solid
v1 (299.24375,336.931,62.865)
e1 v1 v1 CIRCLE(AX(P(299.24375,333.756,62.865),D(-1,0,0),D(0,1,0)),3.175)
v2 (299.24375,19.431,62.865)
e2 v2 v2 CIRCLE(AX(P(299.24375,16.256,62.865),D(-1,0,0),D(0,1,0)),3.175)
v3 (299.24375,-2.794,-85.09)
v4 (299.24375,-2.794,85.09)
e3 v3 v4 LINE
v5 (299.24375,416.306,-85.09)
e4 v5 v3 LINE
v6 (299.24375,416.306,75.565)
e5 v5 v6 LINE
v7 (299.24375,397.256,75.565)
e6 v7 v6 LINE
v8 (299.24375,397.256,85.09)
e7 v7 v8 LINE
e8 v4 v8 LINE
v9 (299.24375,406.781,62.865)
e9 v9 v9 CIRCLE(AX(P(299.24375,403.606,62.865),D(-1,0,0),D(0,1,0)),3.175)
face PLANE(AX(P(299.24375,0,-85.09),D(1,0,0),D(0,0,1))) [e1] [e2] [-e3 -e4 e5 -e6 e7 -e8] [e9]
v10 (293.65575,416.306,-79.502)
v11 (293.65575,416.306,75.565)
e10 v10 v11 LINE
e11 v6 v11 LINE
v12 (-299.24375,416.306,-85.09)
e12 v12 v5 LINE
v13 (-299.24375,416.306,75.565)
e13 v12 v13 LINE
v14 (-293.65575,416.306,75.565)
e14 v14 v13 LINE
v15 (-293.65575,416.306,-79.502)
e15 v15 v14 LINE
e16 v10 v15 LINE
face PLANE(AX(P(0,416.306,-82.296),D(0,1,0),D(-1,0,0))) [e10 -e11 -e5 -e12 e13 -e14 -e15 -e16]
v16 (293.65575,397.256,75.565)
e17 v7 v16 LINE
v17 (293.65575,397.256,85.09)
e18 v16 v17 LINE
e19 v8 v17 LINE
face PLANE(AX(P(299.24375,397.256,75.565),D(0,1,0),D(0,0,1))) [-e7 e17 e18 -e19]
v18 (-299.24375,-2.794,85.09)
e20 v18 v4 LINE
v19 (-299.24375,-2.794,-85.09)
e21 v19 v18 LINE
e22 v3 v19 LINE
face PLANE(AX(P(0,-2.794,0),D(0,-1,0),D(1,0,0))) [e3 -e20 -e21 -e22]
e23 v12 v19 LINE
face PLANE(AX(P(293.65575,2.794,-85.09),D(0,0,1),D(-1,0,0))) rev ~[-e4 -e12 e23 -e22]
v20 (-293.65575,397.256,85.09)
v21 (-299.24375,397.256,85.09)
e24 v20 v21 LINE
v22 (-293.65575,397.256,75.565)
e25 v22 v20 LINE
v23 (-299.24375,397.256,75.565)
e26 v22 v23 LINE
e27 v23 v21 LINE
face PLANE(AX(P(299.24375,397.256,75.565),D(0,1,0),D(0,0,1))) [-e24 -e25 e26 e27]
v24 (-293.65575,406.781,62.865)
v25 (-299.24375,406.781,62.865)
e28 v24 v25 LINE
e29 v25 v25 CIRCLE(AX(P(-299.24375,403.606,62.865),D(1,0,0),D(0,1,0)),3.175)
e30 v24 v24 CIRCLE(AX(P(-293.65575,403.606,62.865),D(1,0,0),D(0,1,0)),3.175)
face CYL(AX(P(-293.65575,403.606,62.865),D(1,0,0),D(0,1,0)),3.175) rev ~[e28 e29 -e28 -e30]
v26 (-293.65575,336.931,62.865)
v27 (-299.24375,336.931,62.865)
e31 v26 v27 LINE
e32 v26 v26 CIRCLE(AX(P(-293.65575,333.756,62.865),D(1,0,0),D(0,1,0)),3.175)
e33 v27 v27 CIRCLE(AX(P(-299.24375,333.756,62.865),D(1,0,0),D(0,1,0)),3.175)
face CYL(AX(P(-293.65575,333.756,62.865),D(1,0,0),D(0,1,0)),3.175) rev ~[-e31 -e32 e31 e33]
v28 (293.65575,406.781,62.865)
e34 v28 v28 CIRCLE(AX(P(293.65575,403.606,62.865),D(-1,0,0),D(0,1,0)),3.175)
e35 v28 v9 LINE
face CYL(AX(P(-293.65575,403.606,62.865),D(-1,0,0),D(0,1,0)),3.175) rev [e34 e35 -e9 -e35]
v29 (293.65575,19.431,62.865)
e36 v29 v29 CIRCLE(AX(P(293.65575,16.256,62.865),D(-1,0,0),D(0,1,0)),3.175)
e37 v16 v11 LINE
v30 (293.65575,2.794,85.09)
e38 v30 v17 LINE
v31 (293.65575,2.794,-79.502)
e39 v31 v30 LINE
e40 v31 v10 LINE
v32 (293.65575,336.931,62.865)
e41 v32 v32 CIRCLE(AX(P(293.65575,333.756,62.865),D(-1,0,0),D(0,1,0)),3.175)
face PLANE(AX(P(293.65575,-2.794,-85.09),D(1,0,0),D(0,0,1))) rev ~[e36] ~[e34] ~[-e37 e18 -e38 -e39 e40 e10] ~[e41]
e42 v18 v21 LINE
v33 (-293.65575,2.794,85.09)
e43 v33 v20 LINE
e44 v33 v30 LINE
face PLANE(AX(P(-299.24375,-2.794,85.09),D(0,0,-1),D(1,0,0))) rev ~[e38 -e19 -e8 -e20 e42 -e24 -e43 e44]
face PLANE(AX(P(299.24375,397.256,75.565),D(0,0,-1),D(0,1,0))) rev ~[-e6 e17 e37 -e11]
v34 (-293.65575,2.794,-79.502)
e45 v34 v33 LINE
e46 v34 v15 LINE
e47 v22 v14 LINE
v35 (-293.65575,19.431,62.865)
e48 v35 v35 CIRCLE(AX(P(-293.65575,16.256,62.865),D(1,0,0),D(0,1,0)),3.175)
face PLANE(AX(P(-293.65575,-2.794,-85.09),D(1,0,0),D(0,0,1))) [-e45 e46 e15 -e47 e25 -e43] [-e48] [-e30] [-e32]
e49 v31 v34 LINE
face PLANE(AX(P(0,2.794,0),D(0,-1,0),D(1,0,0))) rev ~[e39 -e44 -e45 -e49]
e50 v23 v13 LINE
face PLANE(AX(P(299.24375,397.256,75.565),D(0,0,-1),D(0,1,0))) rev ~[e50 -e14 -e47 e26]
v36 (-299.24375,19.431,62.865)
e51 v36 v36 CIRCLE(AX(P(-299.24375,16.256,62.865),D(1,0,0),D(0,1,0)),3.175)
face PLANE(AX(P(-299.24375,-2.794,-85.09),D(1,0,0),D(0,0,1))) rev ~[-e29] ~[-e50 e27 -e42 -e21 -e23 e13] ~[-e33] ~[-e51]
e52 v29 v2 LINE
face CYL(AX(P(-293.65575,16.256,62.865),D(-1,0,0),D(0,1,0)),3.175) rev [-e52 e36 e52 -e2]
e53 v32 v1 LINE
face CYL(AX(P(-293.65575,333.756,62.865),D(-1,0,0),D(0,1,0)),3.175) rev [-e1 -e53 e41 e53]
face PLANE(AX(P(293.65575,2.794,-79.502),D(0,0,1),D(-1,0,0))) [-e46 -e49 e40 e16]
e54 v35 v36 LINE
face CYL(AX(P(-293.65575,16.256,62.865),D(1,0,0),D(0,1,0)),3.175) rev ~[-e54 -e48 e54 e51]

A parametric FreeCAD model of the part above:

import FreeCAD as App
import Part
import Sketcher

V = App.Vector
Q = App.Units.Quantity

doc = App.newDocument("Part")
body = doc.addObject("PartDesign::Body", "Body")

sketch1 = doc.addObject("Sketcher::SketchObject", "Sketch")
body.addObject(sketch1)
sketch1.AttachmentSupport = (doc.XZ_Plane, [""])
sketch1.MapMode = "FlatFace"
sketch1.addGeometry([
    Part.LineSegment(V(-299, 85, 0), V(-299, -85, 0)),
    Part.LineSegment(V(-299, -85, 0), V(299, -85, 0)),
    Part.LineSegment(V(299, -85, 0), V(299, 85, 0)),
    Part.LineSegment(V(299, 85, 0), V(-299, 85, 0)),
], False)
sketch1.addConstraint([
    Sketcher.Constraint("Coincident", 0, 2, 1, 1),
    Sketcher.Constraint("Coincident", 1, 2, 2, 1),
    Sketcher.Constraint("Coincident", 2, 2, 3, 1),
    Sketcher.Constraint("Coincident", 3, 2, 0, 1),
    Sketcher.Constraint("Vertical", 0),
    Sketcher.Constraint("Horizontal", 1),
    Sketcher.Constraint("Vertical", 2),
    Sketcher.Constraint("Horizontal", 3),
    Sketcher.Constraint("Symmetric", 0, 2, 2, 2, -1, 1),
    Sketcher.Constraint("DistanceY", 0, 2, 0, 1, Q("6.7 in")),
    Sketcher.Constraint("DistanceX", 1, 1, 1, 2, Q("23.5625 in")),
])
pad1 = doc.addObject("PartDesign::Pad", "Pad")
body.addObject(pad1)
pad1.Profile = sketch1
pad1.Length = Q("0.22 in")
pad1.Midplane = True

sketch2 = doc.addObject("Sketcher::SketchObject", "Sketch001")
body.addObject(sketch2)
sketch2.AttachmentSupport = (doc.XZ_Plane, [""])
sketch2.MapMode = "FlatFace"
sketch2.AttachmentOffset = App.Placement(V(0, 0, 0.11 * 25.4), App.Rotation())
sketch2.addGeometry([
    Part.LineSegment(V(-299, 85, 0), V(-299, -85, 0)),
    Part.LineSegment(V(-299, -85, 0), V(-294, -85, 0)),
    Part.LineSegment(V(-294, -85, 0), V(-294, 85, 0)),
    Part.LineSegment(V(-294, 85, 0), V(-299, 85, 0)),
    Part.LineSegment(V(294, 85, 0), V(294, -85, 0)),
    Part.LineSegment(V(294, -85, 0), V(299, -85, 0)),
    Part.LineSegment(V(299, -85, 0), V(299, 85, 0)),
    Part.LineSegment(V(299, 85, 0), V(294, 85, 0)),
], False)
sketch2.addConstraint([
    Sketcher.Constraint("Coincident", 0, 2, 1, 1),
    Sketcher.Constraint("Coincident", 1, 2, 2, 1),
    Sketcher.Constraint("Coincident", 2, 2, 3, 1),
    Sketcher.Constraint("Coincident", 3, 2, 0, 1),
    Sketcher.Constraint("Coincident", 4, 2, 5, 1),
    Sketcher.Constraint("Coincident", 5, 2, 6, 1),
    Sketcher.Constraint("Coincident", 6, 2, 7, 1),
    Sketcher.Constraint("Coincident", 7, 2, 4, 1),
    Sketcher.Constraint("Vertical", 0),
    Sketcher.Constraint("Horizontal", 1),
    Sketcher.Constraint("Vertical", 2),
    Sketcher.Constraint("Horizontal", 3),
    Sketcher.Constraint("Vertical", 4),
    Sketcher.Constraint("Horizontal", 5),
    Sketcher.Constraint("Vertical", 6),
    Sketcher.Constraint("Horizontal", 7),
    Sketcher.Constraint("Symmetric", 2, 2, 4, 2, -1, 1),
    Sketcher.Constraint("Symmetric", 0, 2, 6, 2, -1, 1),
    Sketcher.Constraint("Horizontal", 1, 2, 4, 2),
    Sketcher.Constraint("DistanceY", 0, 2, 0, 1, Q("6.7 in")),
    Sketcher.Constraint("DistanceX", 1, 1, 1, 2, Q("0.22 in")),
    Sketcher.Constraint("DistanceX", 0, 2, -1, 1, Q("11.78125 in")),
])
pad2 = doc.addObject("PartDesign::Pad", "Pad001")
body.addObject(pad2)
pad2.Profile = sketch2
pad2.Length = Q("16.5 in")
pad2.Reversed = True

sketch3 = doc.addObject("Sketcher::SketchObject", "Sketch002")
body.addObject(sketch3)
sketch3.AttachmentSupport = (doc.XZ_Plane, [""])
sketch3.MapMode = "FlatFace"
sketch3.AttachmentOffset = App.Placement(V(0, 0, -0.11 * 25.4), App.Rotation())
sketch3.addGeometry([
    Part.LineSegment(V(294, -80, 0), V(294, -85, 0)),
    Part.LineSegment(V(294, -85, 0), V(-294, -85, 0)),
    Part.LineSegment(V(-294, -85, 0), V(-294, -80, 0)),
    Part.LineSegment(V(-294, -80, 0), V(294, -80, 0)),
], False)
sketch3.addConstraint([
    Sketcher.Constraint("Coincident", 0, 2, 1, 1),
    Sketcher.Constraint("Coincident", 1, 2, 2, 1),
    Sketcher.Constraint("Coincident", 2, 2, 3, 1),
    Sketcher.Constraint("Coincident", 3, 2, 0, 1),
    Sketcher.Constraint("Vertical", 0),
    Sketcher.Constraint("Horizontal", 1),
    Sketcher.Constraint("Vertical", 2),
    Sketcher.Constraint("Horizontal", 3),
    Sketcher.Constraint("DistanceY", 0, 2, 0, 1, Q("0.22 in")),
    Sketcher.Constraint("DistanceY", 0, 2, -1, 1, Q("3.35 in")),
    Sketcher.Constraint("DistanceX", 1, 2, 1, 1, Q("23.1225 in")),
    Sketcher.Constraint("DistanceX", -1, 1, 0, 2, Q("293.65575 mm")),
])
pad3 = doc.addObject("PartDesign::Pad", "Pad002")
body.addObject(pad3)
pad3.Profile = sketch3
pad3.Length = Q("16.28 in")
pad3.Reversed = True

sketch4 = doc.addObject("Sketcher::SketchObject", "Sketch003")
body.addObject(sketch4)
sketch4.AttachmentSupport = (doc.YZ_Plane, [""])
sketch4.MapMode = "FlatFace"
sketch4.AttachmentOffset = App.Placement(V(0, 0, 11.78125 * 25.4), App.Rotation())
sketch4.addGeometry([
    Part.LineSegment(V(397, 85, 0), V(397, 76, 0)),
    Part.LineSegment(V(397, 76, 0), V(416, 76, 0)),
    Part.LineSegment(V(416, 76, 0), V(416, 85, 0)),
    Part.LineSegment(V(416, 85, 0), V(397, 85, 0)),
], False)
sketch4.addConstraint([
    Sketcher.Constraint("Coincident", 0, 2, 1, 1),
    Sketcher.Constraint("Coincident", 1, 2, 2, 1),
    Sketcher.Constraint("Coincident", 2, 2, 3, 1),
    Sketcher.Constraint("Coincident", 3, 2, 0, 1),
    Sketcher.Constraint("Vertical", 0),
    Sketcher.Constraint("Horizontal", 1),
    Sketcher.Constraint("Vertical", 2),
    Sketcher.Constraint("Horizontal", 3),
    Sketcher.Constraint("DistanceX", 1, 1, 1, 2, Q("0.75 in")),
    Sketcher.Constraint("DistanceY", 0, 2, 0, 1, Q("0.375 in")),
    Sketcher.Constraint("DistanceX", -1, 1, 0, 2, Q("15.64 in")),
    Sketcher.Constraint("DistanceY", -1, 1, 2, 2, Q("3.35 in")),
])
pocket1 = doc.addObject("PartDesign::Pocket", "Pocket")
body.addObject(pocket1)
pocket1.Profile = sketch4
pocket1.Type = "ThroughAll"

sketch5 = doc.addObject("Sketcher::SketchObject", "Sketch004")
body.addObject(sketch5)
sketch5.AttachmentSupport = (doc.YZ_Plane, [""])
sketch5.MapMode = "FlatFace"
sketch5.AttachmentOffset = App.Placement(V(0, 0, -293.65575), App.Rotation())
sketch5.addGeometry([
    Part.Circle(V(403.6, 62.9, 0), V(0, 0, 1), 3.2),
    Part.Circle(V(333.8, 62.9, 0), V(0, 0, 1), 3.2),
    Part.Circle(V(16.3, 62.9, 0), V(0, 0, 1), 3.2),
], False)
sketch5.addConstraint([
    Sketcher.Constraint("Equal", 0, 1),
    Sketcher.Constraint("Equal", 1, 2),
    Sketcher.Constraint("Horizontal", 0, 3, 1, 3),
    Sketcher.Constraint("Horizontal", 1, 3, 2, 3),
    Sketcher.Constraint("Diameter", 0, Q("0.25 in")),
    Sketcher.Constraint("DistanceX", 2, 3, 1, 3, Q("12.5 in")),
    Sketcher.Constraint("DistanceX", -1, 1, 0, 3, Q("15.89 in")),
    Sketcher.Constraint("DistanceX", -1, 1, 1, 3, Q("13.14 in")),
    Sketcher.Constraint("DistanceY", -1, 1, 0, 3, Q("2.475 in")),
])
pocket2 = doc.addObject("PartDesign::Pocket", "Pocket001")
body.addObject(pocket2)
pocket2.Profile = sketch5
pocket2.Type = "ThroughAll"
pocket2.Midplane = True

doc.recompute()
